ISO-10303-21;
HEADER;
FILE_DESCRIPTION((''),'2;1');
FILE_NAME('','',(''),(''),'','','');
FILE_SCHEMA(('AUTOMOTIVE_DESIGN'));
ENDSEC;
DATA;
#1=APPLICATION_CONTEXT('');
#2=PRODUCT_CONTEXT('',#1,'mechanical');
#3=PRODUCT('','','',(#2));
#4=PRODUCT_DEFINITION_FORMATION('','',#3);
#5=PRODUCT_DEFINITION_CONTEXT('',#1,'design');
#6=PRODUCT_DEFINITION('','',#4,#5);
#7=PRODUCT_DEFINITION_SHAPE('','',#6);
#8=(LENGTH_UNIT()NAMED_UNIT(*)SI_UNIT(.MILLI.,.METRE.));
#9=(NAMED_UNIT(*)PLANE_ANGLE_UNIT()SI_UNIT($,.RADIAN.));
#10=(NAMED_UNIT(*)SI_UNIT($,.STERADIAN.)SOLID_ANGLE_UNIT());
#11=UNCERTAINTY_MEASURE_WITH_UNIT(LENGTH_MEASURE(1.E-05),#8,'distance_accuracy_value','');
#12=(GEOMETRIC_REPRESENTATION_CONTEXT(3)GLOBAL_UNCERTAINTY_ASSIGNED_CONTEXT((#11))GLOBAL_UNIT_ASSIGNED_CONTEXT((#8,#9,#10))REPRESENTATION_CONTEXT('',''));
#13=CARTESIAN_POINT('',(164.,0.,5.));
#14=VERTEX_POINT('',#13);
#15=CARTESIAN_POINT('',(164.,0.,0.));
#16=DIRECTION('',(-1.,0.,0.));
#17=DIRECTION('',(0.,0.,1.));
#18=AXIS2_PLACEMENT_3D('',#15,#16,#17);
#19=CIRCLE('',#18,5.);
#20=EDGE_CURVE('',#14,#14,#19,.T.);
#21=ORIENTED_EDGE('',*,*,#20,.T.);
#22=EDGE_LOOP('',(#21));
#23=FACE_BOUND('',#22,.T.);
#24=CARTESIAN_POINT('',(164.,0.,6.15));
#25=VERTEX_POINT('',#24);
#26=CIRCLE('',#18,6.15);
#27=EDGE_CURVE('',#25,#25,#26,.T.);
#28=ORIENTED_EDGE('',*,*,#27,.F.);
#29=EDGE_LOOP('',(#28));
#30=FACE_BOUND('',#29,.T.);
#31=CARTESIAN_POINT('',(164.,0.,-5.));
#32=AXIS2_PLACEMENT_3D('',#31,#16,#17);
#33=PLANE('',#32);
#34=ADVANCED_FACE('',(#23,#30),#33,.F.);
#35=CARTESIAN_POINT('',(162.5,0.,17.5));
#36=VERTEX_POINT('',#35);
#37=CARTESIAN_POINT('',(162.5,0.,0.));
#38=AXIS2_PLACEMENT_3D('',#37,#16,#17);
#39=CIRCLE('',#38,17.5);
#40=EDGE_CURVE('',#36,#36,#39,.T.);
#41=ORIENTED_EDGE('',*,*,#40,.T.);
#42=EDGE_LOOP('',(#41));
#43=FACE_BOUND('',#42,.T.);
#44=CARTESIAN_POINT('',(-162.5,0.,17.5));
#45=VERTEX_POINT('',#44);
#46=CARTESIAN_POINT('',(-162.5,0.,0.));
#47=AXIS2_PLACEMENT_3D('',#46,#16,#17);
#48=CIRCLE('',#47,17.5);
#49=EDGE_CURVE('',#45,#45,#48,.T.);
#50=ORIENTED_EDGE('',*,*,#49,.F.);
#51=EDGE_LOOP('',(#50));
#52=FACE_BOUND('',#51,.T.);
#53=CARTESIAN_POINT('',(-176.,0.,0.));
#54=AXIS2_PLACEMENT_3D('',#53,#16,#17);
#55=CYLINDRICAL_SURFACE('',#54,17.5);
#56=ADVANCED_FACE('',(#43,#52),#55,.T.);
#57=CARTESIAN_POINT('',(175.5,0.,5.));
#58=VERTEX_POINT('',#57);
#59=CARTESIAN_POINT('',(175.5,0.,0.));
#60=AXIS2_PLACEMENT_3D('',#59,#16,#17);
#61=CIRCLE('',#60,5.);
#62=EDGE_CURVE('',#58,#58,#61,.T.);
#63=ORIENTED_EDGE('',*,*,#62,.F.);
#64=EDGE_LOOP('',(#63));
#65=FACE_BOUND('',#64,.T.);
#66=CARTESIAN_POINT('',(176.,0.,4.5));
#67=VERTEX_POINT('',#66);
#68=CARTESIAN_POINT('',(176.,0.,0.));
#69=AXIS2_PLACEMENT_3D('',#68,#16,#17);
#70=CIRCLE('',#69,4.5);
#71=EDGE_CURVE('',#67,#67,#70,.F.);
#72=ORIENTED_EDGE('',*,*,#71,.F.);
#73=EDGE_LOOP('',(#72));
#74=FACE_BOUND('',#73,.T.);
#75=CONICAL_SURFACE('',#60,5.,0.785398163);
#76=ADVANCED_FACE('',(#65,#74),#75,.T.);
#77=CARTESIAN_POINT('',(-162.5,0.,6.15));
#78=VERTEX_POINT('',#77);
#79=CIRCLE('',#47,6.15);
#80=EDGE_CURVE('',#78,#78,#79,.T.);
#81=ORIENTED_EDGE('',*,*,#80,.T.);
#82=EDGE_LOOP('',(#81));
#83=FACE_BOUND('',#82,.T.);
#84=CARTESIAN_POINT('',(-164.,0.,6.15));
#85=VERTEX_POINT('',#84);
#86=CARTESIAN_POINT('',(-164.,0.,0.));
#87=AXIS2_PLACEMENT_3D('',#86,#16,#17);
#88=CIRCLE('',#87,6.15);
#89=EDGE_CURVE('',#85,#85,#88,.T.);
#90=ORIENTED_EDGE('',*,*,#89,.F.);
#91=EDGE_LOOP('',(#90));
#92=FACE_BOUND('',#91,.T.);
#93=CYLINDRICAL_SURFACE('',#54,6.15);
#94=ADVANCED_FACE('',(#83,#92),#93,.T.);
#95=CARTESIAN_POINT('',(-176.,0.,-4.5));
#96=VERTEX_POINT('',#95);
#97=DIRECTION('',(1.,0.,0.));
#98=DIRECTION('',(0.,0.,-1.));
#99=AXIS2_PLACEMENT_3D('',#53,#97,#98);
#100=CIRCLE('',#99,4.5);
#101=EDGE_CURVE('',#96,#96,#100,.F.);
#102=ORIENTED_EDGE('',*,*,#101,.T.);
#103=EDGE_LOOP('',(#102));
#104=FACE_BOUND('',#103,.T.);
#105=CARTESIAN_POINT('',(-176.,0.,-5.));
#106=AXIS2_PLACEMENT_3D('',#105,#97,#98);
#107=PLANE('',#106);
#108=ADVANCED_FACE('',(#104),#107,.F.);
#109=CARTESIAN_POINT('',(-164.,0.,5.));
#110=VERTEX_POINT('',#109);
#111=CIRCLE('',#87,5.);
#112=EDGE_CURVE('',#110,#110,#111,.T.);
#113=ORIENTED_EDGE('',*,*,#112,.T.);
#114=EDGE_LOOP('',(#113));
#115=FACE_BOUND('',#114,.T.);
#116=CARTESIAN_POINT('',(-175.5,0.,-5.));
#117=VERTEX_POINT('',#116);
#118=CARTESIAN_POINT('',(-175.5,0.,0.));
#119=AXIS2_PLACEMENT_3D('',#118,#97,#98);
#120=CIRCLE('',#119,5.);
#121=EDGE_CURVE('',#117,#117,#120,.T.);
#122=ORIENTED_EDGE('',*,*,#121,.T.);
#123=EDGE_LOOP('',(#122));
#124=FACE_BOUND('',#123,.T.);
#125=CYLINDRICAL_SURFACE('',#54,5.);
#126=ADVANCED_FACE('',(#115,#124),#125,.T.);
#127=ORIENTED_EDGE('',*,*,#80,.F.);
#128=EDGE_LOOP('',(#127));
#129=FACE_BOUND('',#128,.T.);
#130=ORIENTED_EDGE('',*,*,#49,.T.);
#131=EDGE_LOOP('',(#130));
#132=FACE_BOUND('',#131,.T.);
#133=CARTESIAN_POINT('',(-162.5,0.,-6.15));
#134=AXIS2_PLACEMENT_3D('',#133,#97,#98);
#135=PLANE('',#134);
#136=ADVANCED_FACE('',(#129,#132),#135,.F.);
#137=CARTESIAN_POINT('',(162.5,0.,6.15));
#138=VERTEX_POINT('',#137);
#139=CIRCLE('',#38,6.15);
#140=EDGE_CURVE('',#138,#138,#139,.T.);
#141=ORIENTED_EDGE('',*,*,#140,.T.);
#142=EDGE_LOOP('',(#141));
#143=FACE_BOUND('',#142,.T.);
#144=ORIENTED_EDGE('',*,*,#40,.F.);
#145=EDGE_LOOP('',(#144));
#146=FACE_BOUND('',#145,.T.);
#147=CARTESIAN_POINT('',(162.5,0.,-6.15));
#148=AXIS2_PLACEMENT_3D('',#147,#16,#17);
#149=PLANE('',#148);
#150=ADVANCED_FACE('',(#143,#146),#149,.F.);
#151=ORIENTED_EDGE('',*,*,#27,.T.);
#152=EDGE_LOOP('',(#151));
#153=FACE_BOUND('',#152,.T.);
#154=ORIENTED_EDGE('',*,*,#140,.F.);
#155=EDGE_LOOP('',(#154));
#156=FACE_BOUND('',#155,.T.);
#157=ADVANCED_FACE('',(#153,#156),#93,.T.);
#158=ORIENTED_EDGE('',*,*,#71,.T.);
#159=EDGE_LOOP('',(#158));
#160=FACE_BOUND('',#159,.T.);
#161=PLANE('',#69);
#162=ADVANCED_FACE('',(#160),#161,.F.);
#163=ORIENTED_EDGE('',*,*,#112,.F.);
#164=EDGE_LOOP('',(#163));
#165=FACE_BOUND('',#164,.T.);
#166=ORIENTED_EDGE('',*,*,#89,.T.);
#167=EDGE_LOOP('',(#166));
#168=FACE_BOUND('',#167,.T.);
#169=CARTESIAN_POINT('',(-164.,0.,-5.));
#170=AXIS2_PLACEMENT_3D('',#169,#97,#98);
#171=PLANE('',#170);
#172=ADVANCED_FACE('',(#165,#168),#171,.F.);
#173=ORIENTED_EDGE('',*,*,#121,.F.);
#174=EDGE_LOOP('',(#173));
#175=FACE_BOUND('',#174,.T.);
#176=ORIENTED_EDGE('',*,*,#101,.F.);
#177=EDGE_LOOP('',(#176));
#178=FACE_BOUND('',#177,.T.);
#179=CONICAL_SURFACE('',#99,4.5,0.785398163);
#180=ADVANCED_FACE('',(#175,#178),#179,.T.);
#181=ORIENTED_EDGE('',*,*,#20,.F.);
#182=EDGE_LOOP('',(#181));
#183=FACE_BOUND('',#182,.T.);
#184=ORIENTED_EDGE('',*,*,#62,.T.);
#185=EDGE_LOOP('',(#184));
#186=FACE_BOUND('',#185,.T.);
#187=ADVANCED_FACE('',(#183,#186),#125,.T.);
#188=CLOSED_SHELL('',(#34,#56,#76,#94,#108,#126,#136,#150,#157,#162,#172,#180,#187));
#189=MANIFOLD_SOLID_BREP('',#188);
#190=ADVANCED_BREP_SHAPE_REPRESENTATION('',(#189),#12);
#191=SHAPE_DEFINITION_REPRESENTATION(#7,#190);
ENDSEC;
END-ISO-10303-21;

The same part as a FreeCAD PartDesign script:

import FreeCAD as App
import Part
import Sketcher


def edges_at(feature, points):
    """Names of the edges that pass closest to the given points."""
    edges = feature.Shape.Edges
    near = lambda p: min(range(len(edges)), key=lambda i: edges[i].distToShape(Part.Vertex(*p))[0])
    return sorted({f"Edge{near(p) + 1}" for p in points})

doc = App.newDocument("Part")
body = doc.addObject("PartDesign::Body", "Body")

sketch1 = body.newObject("Sketcher::SketchObject", "Sketch")
sketch1.AttachmentSupport = (doc.getObject("XZ_Plane"), [""])
sketch1.MapMode = "FlatFace"
sketch1.addGeometry(Part.LineSegment(App.Vector(-176, 0, 0), App.Vector(176, 0, 0)), False)
sketch1.addGeometry(Part.LineSegment(App.Vector(176, 0, 0), App.Vector(176, -5, 0)), False)
sketch1.addGeometry(Part.LineSegment(App.Vector(176, -5, 0), App.Vector(164, -5, 0)), False)
sketch1.addGeometry(Part.LineSegment(App.Vector(164, -5, 0), App.Vector(164, -6.15, 0)), False)
sketch1.addGeometry(Part.LineSegment(App.Vector(164, -6.15, 0), App.Vector(162.5, -6.15, 0)), False)
sketch1.addGeometry(Part.LineSegment(App.Vector(162.5, -6.15, 0), App.Vector(162.5, -17.5, 0)), False)
sketch1.addGeometry(Part.LineSegment(App.Vector(162.5, -17.5, 0), App.Vector(-162.5, -17.5, 0)), False)
sketch1.addGeometry(Part.LineSegment(App.Vector(-162.5, -17.5, 0), App.Vector(-162.5, -6.15, 0)), False)
sketch1.addGeometry(Part.LineSegment(App.Vector(-162.5, -6.15, 0), App.Vector(-164, -6.15, 0)), False)
sketch1.addGeometry(Part.LineSegment(App.Vector(-164, -6.15, 0), App.Vector(-164, -5, 0)), False)
sketch1.addGeometry(Part.LineSegment(App.Vector(-164, -5, 0), App.Vector(-176, -5, 0)), False)
sketch1.addGeometry(Part.LineSegment(App.Vector(-176, -5, 0), App.Vector(-176, 0, 0)), False)
sketch1.addConstraint(Sketcher.Constraint("Coincident", 0, 2, 1, 1))
sketch1.addConstraint(Sketcher.Constraint("Coincident", 1, 2, 2, 1))
sketch1.addConstraint(Sketcher.Constraint("Coincident", 2, 2, 3, 1))
sketch1.addConstraint(Sketcher.Constraint("Coincident", 3, 2, 4, 1))
sketch1.addConstraint(Sketcher.Constraint("Coincident", 4, 2, 5, 1))
sketch1.addConstraint(Sketcher.Constraint("Coincident", 5, 2, 6, 1))
sketch1.addConstraint(Sketcher.Constraint("Coincident", 6, 2, 7, 1))
sketch1.addConstraint(Sketcher.Constraint("Coincident", 7, 2, 8, 1))
sketch1.addConstraint(Sketcher.Constraint("Coincident", 8, 2, 9, 1))
sketch1.addConstraint(Sketcher.Constraint("Coincident", 9, 2, 10, 1))
sketch1.addConstraint(Sketcher.Constraint("Coincident", 10, 2, 11, 1))
sketch1.addConstraint(Sketcher.Constraint("Coincident", 11, 2, 0, 1))
sketch1.addConstraint(Sketcher.Constraint("Horizontal", 0))
sketch1.addConstraint(Sketcher.Constraint("Vertical", 1))
sketch1.addConstraint(Sketcher.Constraint("Horizontal", 2))
sketch1.addConstraint(Sketcher.Constraint("Vertical", 3))
sketch1.addConstraint(Sketcher.Constraint("Horizontal", 4))
sketch1.addConstraint(Sketcher.Constraint("Vertical", 5))
sketch1.addConstraint(Sketcher.Constraint("Horizontal", 6))
sketch1.addConstraint(Sketcher.Constraint("Vertical", 7))
sketch1.addConstraint(Sketcher.Constraint("Horizontal", 8))
sketch1.addConstraint(Sketcher.Constraint("Vertical", 9))
sketch1.addConstraint(Sketcher.Constraint("Horizontal", 10))
sketch1.addConstraint(Sketcher.Constraint("Vertical", 11))
sketch1.addConstraint(Sketcher.Constraint("Symmetric", 0, 2, 11, 2, -1, 1))
sketch1.addConstraint(Sketcher.Constraint("Symmetric", 4, 2, 7, 2, -2))
sketch1.addConstraint(Sketcher.Constraint("Symmetric", 2, 2, 9, 2, -2))
sketch1.addConstraint(Sketcher.Constraint("DistanceX", 0, 1, 0, 2, 352.0))
sketch1.addConstraint(Sketcher.Constraint("DistanceX", 2, 2, 2, 1, 12.0))
sketch1.addConstraint(Sketcher.Constraint("DistanceX", 6, 2, 6, 1, 325.0))
sketch1.addConstraint(Sketcher.Constraint("DistanceY", 1, 2, 1, 1, 5.0))
sketch1.addConstraint(Sketcher.Constraint("DistanceY", 3, 2, 3, 1, 1.15))
sketch1.addConstraint(Sketcher.Constraint("DistanceY", 5, 2, 5, 1, 11.35))
revolution = body.newObject("PartDesign::Revolution", "Revolution")
revolution.Profile = sketch1
revolution.ReferenceAxis = (sketch1, ["H_Axis"])
revolution.Angle = 360
doc.recompute()

chamfer = body.newObject("PartDesign::Chamfer", "Chamfer")
chamfer.Base = (revolution, edges_at(revolution, [(176, 0, -5), (-176, 0, -5)]))
chamfer.Size = 0.5

doc.recompute()
